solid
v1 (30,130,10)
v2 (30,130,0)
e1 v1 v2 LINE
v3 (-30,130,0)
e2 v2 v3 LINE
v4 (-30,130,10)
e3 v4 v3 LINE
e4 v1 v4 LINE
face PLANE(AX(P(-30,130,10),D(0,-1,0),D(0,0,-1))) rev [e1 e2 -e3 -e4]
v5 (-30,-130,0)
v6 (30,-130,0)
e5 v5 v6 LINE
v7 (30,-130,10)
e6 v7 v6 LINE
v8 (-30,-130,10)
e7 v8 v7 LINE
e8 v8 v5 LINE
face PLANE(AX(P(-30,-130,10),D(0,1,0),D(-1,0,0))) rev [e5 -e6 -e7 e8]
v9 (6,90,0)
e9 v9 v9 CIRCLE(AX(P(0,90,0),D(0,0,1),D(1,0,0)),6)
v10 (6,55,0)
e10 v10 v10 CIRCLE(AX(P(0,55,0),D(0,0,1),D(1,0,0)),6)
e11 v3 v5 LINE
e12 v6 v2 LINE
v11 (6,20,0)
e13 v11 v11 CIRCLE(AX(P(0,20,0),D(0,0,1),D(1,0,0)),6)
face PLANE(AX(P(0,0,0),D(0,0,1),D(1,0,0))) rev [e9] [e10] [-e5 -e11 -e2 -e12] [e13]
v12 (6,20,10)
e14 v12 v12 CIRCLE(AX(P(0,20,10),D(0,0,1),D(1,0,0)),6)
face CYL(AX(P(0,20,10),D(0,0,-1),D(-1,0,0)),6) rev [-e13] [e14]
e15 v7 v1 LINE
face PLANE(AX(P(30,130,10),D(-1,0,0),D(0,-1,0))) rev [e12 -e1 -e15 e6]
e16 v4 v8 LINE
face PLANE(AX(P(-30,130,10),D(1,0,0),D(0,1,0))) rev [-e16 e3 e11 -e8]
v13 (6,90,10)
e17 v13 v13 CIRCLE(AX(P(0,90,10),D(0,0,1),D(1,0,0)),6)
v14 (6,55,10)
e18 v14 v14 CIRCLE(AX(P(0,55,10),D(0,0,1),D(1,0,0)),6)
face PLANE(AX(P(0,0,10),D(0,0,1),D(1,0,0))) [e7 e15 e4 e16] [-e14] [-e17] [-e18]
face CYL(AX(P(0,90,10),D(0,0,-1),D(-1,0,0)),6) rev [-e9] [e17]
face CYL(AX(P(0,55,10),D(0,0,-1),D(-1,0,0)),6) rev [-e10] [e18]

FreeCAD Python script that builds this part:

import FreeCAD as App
import Part
import Sketcher
from FreeCAD import Vector


def add_polygon(sketch, points):
    """Adds a closed chain of lines whose ends are joined by coincident constraints."""
    first, n = sketch.GeometryCount, len(points)
    for a, b in zip(points, points[1:] + points[:1]):
        sketch.addGeometry(Part.LineSegment(App.Vector(*a, 0), App.Vector(*b, 0)), False)
    for i in range(n):
        sketch.addConstraint(Sketcher.Constraint("Coincident", first + i, 2, first + (i + 1) % n, 1))

doc = App.newDocument("Part")
params = doc.addObject("Spreadsheet::Sheet", "Params")
for row, (alias, value) in enumerate([
    ("sketch1_diameter", "12 mm"),
    ("sketch1_width", "60 mm"),
    ("sketch1_height", "260 mm"),
    ("pad1_length", "10 mm"),
], start=1):
    params.set(f"A{row}", alias)
    params.set(f"B{row}", "=" + value)
    params.setAlias(f"B{row}", alias)

body = doc.addObject("PartDesign::Body", "Body")

sketch1 = body.newObject("Sketcher::SketchObject", "Sketch")
sketch1.AttachmentSupport = (doc.getObject("XY_Plane"), [""])
sketch1.MapMode = "FlatFace"
add_polygon(sketch1, [(-30, 130), (-30, -130), (30, -130), (30, 130)])
sketch1.addGeometry(Part.Circle(Vector(0, 20, 0), Vector(0, 0, 1), 6), False)
sketch1.addGeometry(Part.Circle(Vector(0, 55, 0), Vector(0, 0, 1), 6), False)
sketch1.addGeometry(Part.Circle(Vector(0, 90, 0), Vector(0, 0, 1), 6), False)
sketch1.addConstraint([
    Sketcher.Constraint("Vertical", 0),
    Sketcher.Constraint("Horizontal", 1),
    Sketcher.Constraint("Vertical", 2),
    Sketcher.Constraint("Horizontal", 3),
    Sketcher.Constraint("Equal", 4, 5),
    Sketcher.Constraint("Equal", 5, 6),
    Sketcher.Constraint("Symmetric", 0, 2, 2, 2, -1, 1),
    Sketcher.Constraint("PointOnObject", 4, 3, -2),
    Sketcher.Constraint("PointOnObject", 5, 3, -2),
    Sketcher.Constraint("PointOnObject", 6, 3, -2),
    Sketcher.Constraint("Diameter", 4, 12.0),
    Sketcher.Constraint("DistanceX", 1, 1, 1, 2, 60.0),
    Sketcher.Constraint("DistanceY", 0, 2, 0, 1, 260.0),
    Sketcher.Constraint("DistanceY", -1, 1, 4, 3, 20.0),
    Sketcher.Constraint("DistanceY", -1, 1, 5, 3, 55.0),
    Sketcher.Constraint("DistanceY", -1, 1, 6, 3, 90.0),
])
sketch1.setExpression("Constraints[14]", "Params.sketch1_diameter")
sketch1.setExpression("Constraints[15]", "Params.sketch1_width")
sketch1.setExpression("Constraints[16]", "Params.sketch1_height")
pad1 = body.newObject("PartDesign::Pad", "Pad")
pad1.Profile = sketch1
pad1.setExpression("Length", "Params.pad1_length")

doc.recompute()
